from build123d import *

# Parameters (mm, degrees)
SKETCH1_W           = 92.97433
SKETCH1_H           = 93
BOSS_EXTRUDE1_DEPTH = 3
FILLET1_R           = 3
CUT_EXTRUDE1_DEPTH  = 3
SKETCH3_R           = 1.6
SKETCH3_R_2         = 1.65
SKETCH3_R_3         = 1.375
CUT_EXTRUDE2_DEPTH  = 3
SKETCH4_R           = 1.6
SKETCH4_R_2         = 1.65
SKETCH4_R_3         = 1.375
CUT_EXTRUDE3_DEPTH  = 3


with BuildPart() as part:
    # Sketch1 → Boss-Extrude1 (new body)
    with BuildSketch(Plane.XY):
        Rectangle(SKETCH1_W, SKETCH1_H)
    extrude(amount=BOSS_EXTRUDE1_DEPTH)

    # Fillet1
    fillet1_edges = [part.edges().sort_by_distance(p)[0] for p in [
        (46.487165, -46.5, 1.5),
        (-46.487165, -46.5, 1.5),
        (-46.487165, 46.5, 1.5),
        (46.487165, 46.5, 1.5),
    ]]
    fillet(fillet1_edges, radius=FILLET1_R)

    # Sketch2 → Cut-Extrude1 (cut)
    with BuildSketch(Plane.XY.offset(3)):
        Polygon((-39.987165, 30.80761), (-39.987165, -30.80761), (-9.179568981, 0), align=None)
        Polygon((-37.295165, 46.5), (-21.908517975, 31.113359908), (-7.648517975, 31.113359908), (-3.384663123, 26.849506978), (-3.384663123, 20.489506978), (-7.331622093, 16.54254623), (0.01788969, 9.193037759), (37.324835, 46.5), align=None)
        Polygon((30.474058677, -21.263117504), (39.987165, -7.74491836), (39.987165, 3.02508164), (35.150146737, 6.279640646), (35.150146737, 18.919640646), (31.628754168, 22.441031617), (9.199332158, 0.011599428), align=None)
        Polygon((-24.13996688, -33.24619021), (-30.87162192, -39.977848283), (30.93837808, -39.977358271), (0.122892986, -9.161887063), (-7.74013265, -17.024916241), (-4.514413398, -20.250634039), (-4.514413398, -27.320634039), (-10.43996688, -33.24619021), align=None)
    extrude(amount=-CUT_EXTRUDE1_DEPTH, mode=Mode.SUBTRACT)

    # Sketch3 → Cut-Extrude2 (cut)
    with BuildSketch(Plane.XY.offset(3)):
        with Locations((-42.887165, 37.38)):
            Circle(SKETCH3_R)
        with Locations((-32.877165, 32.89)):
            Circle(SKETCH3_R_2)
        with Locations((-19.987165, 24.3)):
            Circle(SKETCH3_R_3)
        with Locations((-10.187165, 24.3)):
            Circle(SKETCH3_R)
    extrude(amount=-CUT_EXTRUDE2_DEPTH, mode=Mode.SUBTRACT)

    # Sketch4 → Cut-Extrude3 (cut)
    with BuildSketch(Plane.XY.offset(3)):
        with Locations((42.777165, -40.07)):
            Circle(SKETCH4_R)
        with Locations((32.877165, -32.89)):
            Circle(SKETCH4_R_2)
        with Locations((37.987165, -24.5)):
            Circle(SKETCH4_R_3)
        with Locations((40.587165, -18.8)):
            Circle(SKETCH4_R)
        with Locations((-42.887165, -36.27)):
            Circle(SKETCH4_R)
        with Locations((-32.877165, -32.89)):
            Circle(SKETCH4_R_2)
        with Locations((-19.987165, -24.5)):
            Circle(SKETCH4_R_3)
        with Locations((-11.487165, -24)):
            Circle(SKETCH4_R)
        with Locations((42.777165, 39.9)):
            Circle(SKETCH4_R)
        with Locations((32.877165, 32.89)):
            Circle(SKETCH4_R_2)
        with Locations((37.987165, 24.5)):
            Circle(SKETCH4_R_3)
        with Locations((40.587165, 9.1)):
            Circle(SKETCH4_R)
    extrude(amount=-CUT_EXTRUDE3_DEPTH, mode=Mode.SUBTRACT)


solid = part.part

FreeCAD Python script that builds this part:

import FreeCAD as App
import Part
import Sketcher
from FreeCAD import Vector


def edges_at(feature, points):
    """Names of the edges that pass closest to the given points."""
    edges = feature.Shape.Edges
    near = lambda p: min(range(len(edges)), key=lambda i: edges[i].distToShape(Part.Vertex(*p))[0])
    return sorted({f"Edge{near(p) + 1}" for p in points})


def add_polygon(sketch, points):
    """Adds a closed chain of lines whose ends are joined by coincident constraints."""
    first, n = sketch.GeometryCount, len(points)
    for a, b in zip(points, points[1:] + points[:1]):
        sketch.addGeometry(Part.LineSegment(App.Vector(*a, 0), App.Vector(*b, 0)), False)
    for i in range(n):
        sketch.addConstraint(Sketcher.Constraint("Coincident", first + i, 2, first + (i + 1) % n, 1))

doc = App.newDocument("Part")
params = doc.addObject("Spreadsheet::Sheet", "Params")
for row, (alias, value) in enumerate([
    ("sketch1_height", "93 mm"),
    ("pad1_length", "3 mm"),
    ("fillet_radius", "3 mm"),
    ("sketch2_width", "13.7 mm"),
    ("sketch2_width2", "14.26 mm"),
    ("sketch2_width3", "74.62 mm"),
    ("sketch2_height", "6.36 mm"),
    ("sketch2_height2", "10.77 mm"),
    ("pocket1_length", "3 mm"),
    ("sketch3_diameter", "3.2 mm"),
    ("sketch3_diameter2", "3.3 mm"),
    ("sketch3_diameter3", "2.75 mm"),
    ("pocket2_length", "3 mm"),
    ("sketch4_diameter", "3.2 mm"),
    ("sketch4_diameter2", "3.3 mm"),
    ("sketch4_diameter3", "2.75 mm"),
    ("pocket3_length", "3 mm"),
], start=1):
    params.set(f"A{row}", alias)
    params.set(f"B{row}", "=" + value)
    params.setAlias(f"B{row}", alias)

body = doc.addObject("PartDesign::Body", "Body")

sketch1 = doc.addObject("Sketcher::SketchObject", "Sketch")
body.addObject(sketch1)
sketch1.AttachmentSupport = (doc.XY_Plane, [""])
sketch1.MapMode = "FlatFace"
add_polygon(sketch1, [(-46, 46), (-46, -46), (46, -46), (46, 46)])
sketch1.addConstraint([
    Sketcher.Constraint("Vertical", 0),
    Sketcher.Constraint("Horizontal", 1),
    Sketcher.Constraint("Vertical", 2),
    Sketcher.Constraint("Horizontal", 3),
    Sketcher.Constraint("Symmetric", 0, 2, 2, 2, -1, 1),
    Sketcher.Constraint("DistanceY", 0, 2, 0, 1, 93.0),
    Sketcher.Constraint("DistanceX", 1, 1, 1, 2, 92.97433),
])
sketch1.setExpression("Constraints[9]", "Params.sketch1_height")
pad1 = doc.addObject("PartDesign::Pad", "Pad")
body.addObject(pad1)
pad1.Profile = sketch1
pad1.setExpression("Length", "Params.pad1_length")
doc.recompute()

fillet = doc.addObject("PartDesign::Fillet", "Fillet")
body.addObject(fillet)
fillet.Base = (pad1, edges_at(pad1, [
    (46.487, -46.5, 1.5),
    (-46.487, -46.5, 1.5),
    (-46.487, 46.5, 1.5),
    (46.487, 46.5, 1.5),
]))
fillet.setExpression("Radius", "Params.fillet_radius")

sketch2 = doc.addObject("Sketcher::SketchObject", "Sketch001")
body.addObject(sketch2)
sketch2.AttachmentSupport = (doc.XY_Plane, [""])
sketch2.MapMode = "FlatFace"
sketch2.AttachmentOffset = App.Placement(Vector(0, 0, 3), App.Rotation())
add_polygon(sketch2, [(-39.987165, 30.80761), (-39.987165, -30.80761), (-9.179569, 0)])
add_polygon(sketch2, [(-37.295165, 46.5), (-21.908518, 31.11336), (-7.648518, 31.11336), (-3.384663, 26.849507), (-3.384663, 20.489507), (-7.331622, 16.542546), (0.01789, 9.193038), (37.324835, 46.5)])
add_polygon(sketch2, [(30.474059, -21.263118), (39.987165, -7.744918), (39.987165, 3.025082), (35.150147, 6.279641), (35.150147, 18.919641), (31.628754, 22.441032), (9.199332, 0.011599)])
add_polygon(sketch2, [(-24.139967, -33.24619), (-30.871622, -39.977848), (30.938378, -39.977358), (0.122893, -9.161887), (-7.740133, -17.024916), (-4.514413, -20.250634), (-4.514413, -27.320634), (-10.439967, -33.24619)])
sketch2.addConstraint([
    Sketcher.Constraint("Vertical", 0),
    Sketcher.Constraint("Horizontal", 4),
    Sketcher.Constraint("Vertical", 6),
    Sketcher.Constraint("Horizontal", 10),
    Sketcher.Constraint("Vertical", 12),
    Sketcher.Constraint("Vertical", 14),
    Sketcher.Constraint("Vertical", 23),
    Sketcher.Constraint("Horizontal", 25),
    Sketcher.Constraint("PointOnObject", 1, 2, -1),
    Sketcher.Constraint("DistanceX", 25, 2, 25, 1, 13.7),
    Sketcher.Constraint("DistanceX", 4, 1, 4, 2, 14.26),
    Sketcher.Constraint("DistanceX", 10, 2, 10, 1, 74.62),
    Sketcher.Constraint("DistanceY", 6, 2, 6, 1, 6.36),
    Sketcher.Constraint("DistanceY", 12, 1, 12, 2, 10.77),
    Sketcher.Constraint("DistanceY", 14, 1, 14, 2, 12.64),
    Sketcher.Constraint("DistanceY", 23, 2, 23, 1, 7.07),
    Sketcher.Constraint("DistanceY", -1, 1, 9, 2, 46.5),
    Sketcher.Constraint("Distance", 3, 21.76),
    Sketcher.Constraint("Distance", 5, 6.03),
    Sketcher.Constraint("Distance", 9, 52.76),
    Sketcher.Constraint("Distance", 11, 16.53),
    Sketcher.Constraint("Distance", 13, 5.83),
    Sketcher.Constraint("Distance", 15, 4.98),
    Sketcher.Constraint("Distance", 16, 31.72),
    Sketcher.Constraint("Distance", 18, 9.52),
    Sketcher.Constraint("Distance", 19, 61.81),
    Sketcher.Constraint("Distance", 21, 11.12),
    Sketcher.Constraint("Distance", 24, 8.38),
    Sketcher.Constraint("DistanceX", 18, 2, 7, 2, 23.54),
    Sketcher.Constraint("Distance", 17, 30.087),
    Sketcher.Constraint("DistanceX", 2, 2, 10, 2, 2.692),
    Sketcher.Constraint("DistanceY", 19, 2, 13, 2, 46.256999),
    Sketcher.Constraint("DistanceY", 0, 2, 0, 1, 61.61522),
    Sketcher.Constraint("DistanceY", -1, 1, 16, 2, 0.011599),
    Sketcher.Constraint("DistanceX", 2, 2, 5, 2, 36.602502),
    Sketcher.Constraint("DistanceX", 1, 2, 16, 2, 18.378901),
    Sketcher.Constraint("DistanceY", 17, 2, 11, 2, 13.518199),
    Sketcher.Constraint("DistanceX", 0, 2, 25, 2, 15.847198),
    Sketcher.Constraint("Distance", 1, 43.56853),
    Sketcher.Constraint("Distance", 2, 43.56853),
    Sketcher.Constraint("DistanceX", 1, 2, -1, 1, 9.179569),
    Sketcher.Constraint("DistanceY", -1, 1, 3, 2, 31.11336),
    Sketcher.Constraint("DistanceX", -1, 1, 8, 2, 0.01789),
    Sketcher.Constraint("DistanceY", 11, 2, -1, 1, 7.744918),
    Sketcher.Constraint("DistanceY", -1, 1, 13, 2, 6.279641),
    Sketcher.Constraint("DistanceX", 18, 2, -1, 1, 30.871622),
    Sketcher.Constraint("DistanceY", 18, 2, -1, 1, 39.977848),
    Sketcher.Constraint("DistanceY", 7, 2, 6, 2, 3.946961),
    Sketcher.Constraint("DistanceX", 20, 2, 16, 2, 9.076439),
    Sketcher.Constraint("DistanceY", 21, 2, 20, 2, 7.863029),
    Sketcher.Constraint("DistanceX", 21, 2, 22, 2, 3.225719),
    Sketcher.Constraint("Distance", 20, 43.579667),
])
sketch2.setExpression("Constraints[35]", "Params.sketch2_width")
sketch2.setExpression("Constraints[36]", "Params.sketch2_width2")
sketch2.setExpression("Constraints[37]", "Params.sketch2_width3")
sketch2.setExpression("Constraints[38]", "Params.sketch2_height")
sketch2.setExpression("Constraints[39]", "Params.sketch2_height2")
pocket1 = doc.addObject("PartDesign::Pocket", "Pocket")
body.addObject(pocket1)
pocket1.Profile = sketch2
pocket1.setExpression("Length", "Params.pocket1_length")

sketch3 = doc.addObject("Sketcher::SketchObject", "Sketch002")
body.addObject(sketch3)
sketch3.AttachmentSupport = (doc.XY_Plane, [""])
sketch3.MapMode = "FlatFace"
sketch3.AttachmentOffset = App.Placement(Vector(0, 0, 3), App.Rotation())
sketch3.addGeometry([
    Part.Circle(Vector(-42.9, 37.4, 0), Vector(0, 0, 1), 1.6),
    Part.Circle(Vector(-32.9, 32.9, 0), Vector(0, 0, 1), 1.6),
    Part.Circle(Vector(-20, 24.3, 0), Vector(0, 0, 1), 1.4),
    Part.Circle(Vector(-10.2, 24.3, 0), Vector(0, 0, 1), 1.6),
], False)
sketch3.addConstraint([
    Sketcher.Constraint("Equal", 0, 3),
    Sketcher.Constraint("Horizontal", 2, 3, 3, 3),
    Sketcher.Constraint("Diameter", 0, 3.2),
    Sketcher.Constraint("Diameter", 1, 3.3),
    Sketcher.Constraint("Diameter", 2, 2.75),
    Sketcher.Constraint("DistanceY", -1, 1, 2, 3, 24.3),
    Sketcher.Constraint("DistanceX", 0, 3, 2, 3, 22.9),
    Sketcher.Constraint("DistanceX", 2, 3, 3, 3, 9.8),
    Sketcher.Constraint("DistanceY", -1, 1, 0, 3, 37.38),
    Sketcher.Constraint("DistanceY", -1, 1, 1, 3, 32.89),
    Sketcher.Constraint("DistanceX", 0, 3, 1, 3, 10.01),
    Sketcher.Constraint("DistanceX", 0, 3, -1, 1, 42.887165),
])
sketch3.setExpression("Constraints[2]", "Params.sketch3_diameter")
sketch3.setExpression("Constraints[3]", "Params.sketch3_diameter2")
sketch3.setExpression("Constraints[4]", "Params.sketch3_diameter3")
pocket2 = doc.addObject("PartDesign::Pocket", "Pocket001")
body.addObject(pocket2)
pocket2.Profile = sketch3
pocket2.setExpression("Length", "Params.pocket2_length")

sketch4 = doc.addObject("Sketcher::SketchObject", "Sketch003")
body.addObject(sketch4)
sketch4.AttachmentSupport = (doc.XY_Plane, [""])
sketch4.MapMode = "FlatFace"
sketch4.AttachmentOffset = App.Placement(Vector(0, 0, 3), App.Rotation())
sketch4.addGeometry([
    Part.Circle(Vector(42.8, -40.1, 0), Vector(0, 0, 1), 1.6),
    Part.Circle(Vector(32.9, -32.9, 0), Vector(0, 0, 1), 1.6),
    Part.Circle(Vector(38, -24.5, 0), Vector(0, 0, 1), 1.4),
    Part.Circle(Vector(40.6, -18.8, 0), Vector(0, 0, 1), 1.6),
    Part.Circle(Vector(-42.9, -36.3, 0), Vector(0, 0, 1), 1.6),
    Part.Circle(Vector(-32.9, -32.9, 0), Vector(0, 0, 1), 1.6),
    Part.Circle(Vector(-20, -24.5, 0), Vector(0, 0, 1), 1.4),
    Part.Circle(Vector(-11.5, -24, 0), Vector(0, 0, 1), 1.6),
    Part.Circle(Vector(42.8, 39.9, 0), Vector(0, 0, 1), 1.6),
    Part.Circle(Vector(32.9, 32.9, 0), Vector(0, 0, 1), 1.6),
    Part.Circle(Vector(38, 24.5, 0), Vector(0, 0, 1), 1.4),
    Part.Circle(Vector(40.6, 9.1, 0), Vector(0, 0, 1), 1.6),
], False)
sketch4.addConstraint([
    Sketcher.Constraint("Equal", 0, 3),
    Sketcher.Constraint("Equal", 3, 4),
    Sketcher.Constraint("Equal", 1, 5),
    Sketcher.Constraint("Equal", 2, 6),
    Sketcher.Constraint("Equal", 4, 7),
    Sketcher.Constraint("Equal", 7, 8),
    Sketcher.Constraint("Equal", 5, 9),
    Sketcher.Constraint("Equal", 6, 10),
    Sketcher.Constraint("Equal", 8, 11),
    Sketcher.Constraint("Symmetric", 5, 3, 9, 3, -1, 1),
    Sketcher.Constraint("Symmetric", 1, 3, 5, 3, -2),
    Sketcher.Constraint("Symmetric", 2, 3, 10, 3, -1),
    Sketcher.Constraint("Horizontal", 2, 3, 6, 3),
    Sketcher.Constraint("Vertical", 0, 3, 8, 3),
    Sketcher.Constraint("Vertical", 3, 3, 11, 3),
    Sketcher.Constraint("Diameter", 0, 3.2),
    Sketcher.Constraint("Diameter", 1, 3.3),
    Sketcher.Constraint("Diameter", 2, 2.75),
    Sketcher.Constraint("DistanceY", 7, 3, -1, 1, 24.0),
    Sketcher.Constraint("DistanceY", 2, 3, 10, 3, 49.0),
    Sketcher.Constraint("DistanceY", 3, 3, -1, 1, 18.8),
    Sketcher.Constraint("DistanceY", -1, 1, 8, 3, 39.9),
    Sketcher.Constraint("DistanceY", -1, 1, 11, 3, 9.1),
    Sketcher.Constraint("DistanceX", 1, 3, 0, 3, 9.9),
    Sketcher.Constraint("DistanceX", 2, 3, 3, 3, 2.6),
    Sketcher.Constraint("DistanceY", 0, 3, 4, 3, 3.8),
    Sketcher.Constraint("DistanceX", 4, 3, 6, 3, 22.9),
    Sketcher.Constraint("DistanceX", 6, 3, 7, 3, 8.5),
    Sketcher.Constraint("DistanceY", 0, 3, -1, 1, 40.07),
    Sketcher.Constraint("DistanceY", 1, 3, -1, 1, 32.89),
    Sketcher.Constraint("DistanceX", 1, 3, 2, 3, 5.11),
    Sketcher.Constraint("DistanceX", 4, 3, 5, 3, 10.01),
    Sketcher.Constraint("DistanceX", 4, 3, 1, 3, 75.76433),
])
sketch4.setExpression("Constraints[15]", "Params.sketch4_diameter")
sketch4.setExpression("Constraints[16]", "Params.sketch4_diameter2")
sketch4.setExpression("Constraints[17]", "Params.sketch4_diameter3")
pocket3 = doc.addObject("PartDesign::Pocket", "Pocket002")
body.addObject(pocket3)
pocket3.Profile = sketch4
pocket3.setExpression("Length", "Params.pocket3_length")

doc.recompute()
